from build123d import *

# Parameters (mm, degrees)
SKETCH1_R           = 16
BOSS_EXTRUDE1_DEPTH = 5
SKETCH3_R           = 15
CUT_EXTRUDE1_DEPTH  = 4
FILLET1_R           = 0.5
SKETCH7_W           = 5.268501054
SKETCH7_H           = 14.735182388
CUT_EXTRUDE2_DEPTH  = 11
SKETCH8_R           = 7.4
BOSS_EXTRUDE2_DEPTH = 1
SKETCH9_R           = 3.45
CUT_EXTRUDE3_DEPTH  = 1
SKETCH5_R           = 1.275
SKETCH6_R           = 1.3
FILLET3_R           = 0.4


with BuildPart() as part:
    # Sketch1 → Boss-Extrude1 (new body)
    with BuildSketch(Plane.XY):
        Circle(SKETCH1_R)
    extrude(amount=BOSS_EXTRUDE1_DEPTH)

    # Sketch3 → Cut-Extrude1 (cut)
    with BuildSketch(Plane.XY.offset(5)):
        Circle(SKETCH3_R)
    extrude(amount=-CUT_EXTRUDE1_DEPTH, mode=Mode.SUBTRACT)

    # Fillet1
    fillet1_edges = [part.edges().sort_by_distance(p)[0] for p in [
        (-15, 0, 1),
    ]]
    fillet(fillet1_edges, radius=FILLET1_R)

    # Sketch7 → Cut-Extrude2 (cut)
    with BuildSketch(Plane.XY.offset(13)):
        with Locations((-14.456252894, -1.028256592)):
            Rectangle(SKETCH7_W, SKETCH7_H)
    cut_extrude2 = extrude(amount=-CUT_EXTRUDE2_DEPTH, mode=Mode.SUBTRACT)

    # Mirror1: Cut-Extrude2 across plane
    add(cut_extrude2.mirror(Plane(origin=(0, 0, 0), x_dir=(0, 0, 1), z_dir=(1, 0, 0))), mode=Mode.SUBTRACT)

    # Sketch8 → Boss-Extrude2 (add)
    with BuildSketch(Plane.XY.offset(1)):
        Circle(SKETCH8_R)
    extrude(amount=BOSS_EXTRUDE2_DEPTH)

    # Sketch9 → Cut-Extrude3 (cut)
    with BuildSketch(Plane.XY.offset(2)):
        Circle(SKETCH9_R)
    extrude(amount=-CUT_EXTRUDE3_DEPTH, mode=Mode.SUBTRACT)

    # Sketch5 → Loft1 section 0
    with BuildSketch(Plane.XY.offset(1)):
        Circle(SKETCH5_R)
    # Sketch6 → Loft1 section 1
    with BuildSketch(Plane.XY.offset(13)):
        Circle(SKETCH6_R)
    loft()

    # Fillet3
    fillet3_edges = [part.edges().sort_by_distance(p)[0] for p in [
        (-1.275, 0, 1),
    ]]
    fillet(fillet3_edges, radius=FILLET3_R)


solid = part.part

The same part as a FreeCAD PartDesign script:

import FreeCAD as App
import Part
import Sketcher

V = App.Vector
Q = App.Units.Quantity


def edges_at(feature, points):
    """Names of the edges that pass closest to the given points."""
    edges = feature.Shape.Edges
    near = lambda p: min(range(len(edges)), key=lambda i: edges[i].distToShape(Part.Vertex(*p))[0])
    return sorted({f"Edge{near(p) + 1}" for p in points})

doc = App.newDocument("Part")
body = doc.addObject("PartDesign::Body", "Body")

sketch1 = body.newObject("Sketcher::SketchObject", "Sketch")
sketch1.AttachmentSupport = (doc.getObject("XY_Plane"), [""])
sketch1.MapMode = "FlatFace"
sketch1.addGeometry(Part.Circle(V(0, 0, 0), V(0, 0, 1), 16), False)
sketch1.addConstraint(Sketcher.Constraint("Coincident", 0, 3, -1, 1))
sketch1.addConstraint(Sketcher.Constraint("Diameter", 0, Q("32 mm")))
pad1 = body.newObject("PartDesign::Pad", "Pad")
pad1.Profile = sketch1
pad1.Length = 5

sketch2 = body.newObject("Sketcher::SketchObject", "Sketch001")
sketch2.AttachmentSupport = (doc.getObject("XY_Plane"), [""])
sketch2.MapMode = "FlatFace"
sketch2.AttachmentOffset = App.Placement(V(0, 0, 5), App.Rotation())
sketch2.addGeometry(Part.Circle(V(0, 0, 0), V(0, 0, 1), 15), False)
sketch2.addConstraint(Sketcher.Constraint("Coincident", 0, 3, -1, 1))
sketch2.addConstraint(Sketcher.Constraint("Diameter", 0, Q("30 mm")))
pocket1 = body.newObject("PartDesign::Pocket", "Pocket")
pocket1.Profile = sketch2
pocket1.Length = 4
doc.recompute()

fillet = body.newObject("PartDesign::Fillet", "Fillet")
fillet.Base = (pocket1, edges_at(pocket1, [(-15, 0, 1)]))
fillet.Radius = 0.5

sketch3 = body.newObject("Sketcher::SketchObject", "Sketch002")
sketch3.AttachmentSupport = (doc.getObject("XY_Plane"), [""])
sketch3.MapMode = "FlatFace"
sketch3.AttachmentOffset = App.Placement(V(0, 0, 13), App.Rotation())
sketch3.addGeometry(Part.LineSegment(V(-17, 6, 0), V(-17, -8, 0)), False)
sketch3.addGeometry(Part.LineSegment(V(-17, -8, 0), V(-12, -8, 0)), False)
sketch3.addGeometry(Part.LineSegment(V(-12, -8, 0), V(-12, 6, 0)), False)
sketch3.addGeometry(Part.LineSegment(V(-12, 6, 0), V(-17, 6, 0)), False)
sketch3.addConstraint(Sketcher.Constraint("Coincident", 0, 2, 1, 1))
sketch3.addConstraint(Sketcher.Constraint("Coincident", 1, 2, 2, 1))
sketch3.addConstraint(Sketcher.Constraint("Coincident", 2, 2, 3, 1))
sketch3.addConstraint(Sketcher.Constraint("Coincident", 3, 2, 0, 1))
sketch3.addConstraint(Sketcher.Constraint("Vertical", 0))
sketch3.addConstraint(Sketcher.Constraint("Horizontal", 1))
sketch3.addConstraint(Sketcher.Constraint("Vertical", 2))
sketch3.addConstraint(Sketcher.Constraint("Horizontal", 3))
sketch3.addConstraint(Sketcher.Constraint("DistanceX", 1, 1, 1, 2, Q("5.268501 mm")))
sketch3.addConstraint(Sketcher.Constraint("DistanceY", 0, 2, 0, 1, Q("14.735182 mm")))
sketch3.addConstraint(Sketcher.Constraint("DistanceX", 0, 2, -1, 1, Q("17.090503 mm")))
sketch3.addConstraint(Sketcher.Constraint("DistanceY", 0, 2, -1, 1, Q("8.395848 mm")))
pocket2 = body.newObject("PartDesign::Pocket", "Pocket001")
pocket2.Profile = sketch3
pocket2.Length = 11
doc.recompute()

mirrored = body.newObject("PartDesign::Mirrored", "Mirrored")
mirrored.Originals = [pocket2]
mirrored.MirrorPlane = (doc.getObject("YZ_Plane"), [""])
body.Tip = mirrored

sketch4 = body.newObject("Sketcher::SketchObject", "Sketch003")
sketch4.AttachmentSupport = (doc.getObject("XY_Plane"), [""])
sketch4.MapMode = "FlatFace"
sketch4.AttachmentOffset = App.Placement(V(0, 0, 1), App.Rotation())
sketch4.addGeometry(Part.Circle(V(0, 0, 0), V(0, 0, 1), 7), False)
sketch4.addConstraint(Sketcher.Constraint("Coincident", 0, 3, -1, 1))
sketch4.addConstraint(Sketcher.Constraint("Diameter", 0, Q("14.8 mm")))
pad2 = body.newObject("PartDesign::Pad", "Pad001")
pad2.Profile = sketch4
pad2.Length = 1

sketch5 = body.newObject("Sketcher::SketchObject", "Sketch004")
sketch5.AttachmentSupport = (doc.getObject("XY_Plane"), [""])
sketch5.MapMode = "FlatFace"
sketch5.AttachmentOffset = App.Placement(V(0, 0, 2), App.Rotation())
sketch5.addGeometry(Part.Circle(V(0, 0, 0), V(0, 0, 1), 3.5), False)
sketch5.addConstraint(Sketcher.Constraint("Coincident", 0, 3, -1, 1))
sketch5.addConstraint(Sketcher.Constraint("Diameter", 0, Q("6.9 mm")))
pocket3 = body.newObject("PartDesign::Pocket", "Pocket002")
pocket3.Profile = sketch5
pocket3.Length = 1

sketch6 = body.newObject("Sketcher::SketchObject", "Sketch005")
sketch6.AttachmentSupport = (doc.getObject("XY_Plane"), [""])
sketch6.MapMode = "FlatFace"
sketch6.AttachmentOffset = App.Placement(V(0, 0, 1), App.Rotation())
sketch6.addGeometry(Part.Circle(V(0, 0, 0), V(0, 0, 1), 1.3), False)
sketch6.addConstraint(Sketcher.Constraint("Coincident", 0, 3, -1, 1))
sketch6.addConstraint(Sketcher.Constraint("Diameter", 0, Q("2.55 mm")))

sketch7 = body.newObject("Sketcher::SketchObject", "Sketch006")
sketch7.AttachmentSupport = (doc.getObject("XY_Plane"), [""])
sketch7.MapMode = "FlatFace"
sketch7.AttachmentOffset = App.Placement(V(0, 0, 13), App.Rotation())
sketch7.addGeometry(Part.Circle(V(0, 0, 0), V(0, 0, 1), 1.3), False)
sketch7.addConstraint(Sketcher.Constraint("Coincident", 0, 3, -1, 1))
sketch7.addConstraint(Sketcher.Constraint("Diameter", 0, Q("2.6 mm")))

additiveloft = body.newObject("PartDesign::AdditiveLoft", "AdditiveLoft")
additiveloft.Profile = sketch6
additiveloft.Sections = [sketch7]
doc.recompute()

fillet2 = body.newObject("PartDesign::Fillet", "Fillet001")
fillet2.Base = (additiveloft, edges_at(additiveloft, [(-1.275, 0, 1)]))
fillet2.Radius = 0.4

doc.recompute()
